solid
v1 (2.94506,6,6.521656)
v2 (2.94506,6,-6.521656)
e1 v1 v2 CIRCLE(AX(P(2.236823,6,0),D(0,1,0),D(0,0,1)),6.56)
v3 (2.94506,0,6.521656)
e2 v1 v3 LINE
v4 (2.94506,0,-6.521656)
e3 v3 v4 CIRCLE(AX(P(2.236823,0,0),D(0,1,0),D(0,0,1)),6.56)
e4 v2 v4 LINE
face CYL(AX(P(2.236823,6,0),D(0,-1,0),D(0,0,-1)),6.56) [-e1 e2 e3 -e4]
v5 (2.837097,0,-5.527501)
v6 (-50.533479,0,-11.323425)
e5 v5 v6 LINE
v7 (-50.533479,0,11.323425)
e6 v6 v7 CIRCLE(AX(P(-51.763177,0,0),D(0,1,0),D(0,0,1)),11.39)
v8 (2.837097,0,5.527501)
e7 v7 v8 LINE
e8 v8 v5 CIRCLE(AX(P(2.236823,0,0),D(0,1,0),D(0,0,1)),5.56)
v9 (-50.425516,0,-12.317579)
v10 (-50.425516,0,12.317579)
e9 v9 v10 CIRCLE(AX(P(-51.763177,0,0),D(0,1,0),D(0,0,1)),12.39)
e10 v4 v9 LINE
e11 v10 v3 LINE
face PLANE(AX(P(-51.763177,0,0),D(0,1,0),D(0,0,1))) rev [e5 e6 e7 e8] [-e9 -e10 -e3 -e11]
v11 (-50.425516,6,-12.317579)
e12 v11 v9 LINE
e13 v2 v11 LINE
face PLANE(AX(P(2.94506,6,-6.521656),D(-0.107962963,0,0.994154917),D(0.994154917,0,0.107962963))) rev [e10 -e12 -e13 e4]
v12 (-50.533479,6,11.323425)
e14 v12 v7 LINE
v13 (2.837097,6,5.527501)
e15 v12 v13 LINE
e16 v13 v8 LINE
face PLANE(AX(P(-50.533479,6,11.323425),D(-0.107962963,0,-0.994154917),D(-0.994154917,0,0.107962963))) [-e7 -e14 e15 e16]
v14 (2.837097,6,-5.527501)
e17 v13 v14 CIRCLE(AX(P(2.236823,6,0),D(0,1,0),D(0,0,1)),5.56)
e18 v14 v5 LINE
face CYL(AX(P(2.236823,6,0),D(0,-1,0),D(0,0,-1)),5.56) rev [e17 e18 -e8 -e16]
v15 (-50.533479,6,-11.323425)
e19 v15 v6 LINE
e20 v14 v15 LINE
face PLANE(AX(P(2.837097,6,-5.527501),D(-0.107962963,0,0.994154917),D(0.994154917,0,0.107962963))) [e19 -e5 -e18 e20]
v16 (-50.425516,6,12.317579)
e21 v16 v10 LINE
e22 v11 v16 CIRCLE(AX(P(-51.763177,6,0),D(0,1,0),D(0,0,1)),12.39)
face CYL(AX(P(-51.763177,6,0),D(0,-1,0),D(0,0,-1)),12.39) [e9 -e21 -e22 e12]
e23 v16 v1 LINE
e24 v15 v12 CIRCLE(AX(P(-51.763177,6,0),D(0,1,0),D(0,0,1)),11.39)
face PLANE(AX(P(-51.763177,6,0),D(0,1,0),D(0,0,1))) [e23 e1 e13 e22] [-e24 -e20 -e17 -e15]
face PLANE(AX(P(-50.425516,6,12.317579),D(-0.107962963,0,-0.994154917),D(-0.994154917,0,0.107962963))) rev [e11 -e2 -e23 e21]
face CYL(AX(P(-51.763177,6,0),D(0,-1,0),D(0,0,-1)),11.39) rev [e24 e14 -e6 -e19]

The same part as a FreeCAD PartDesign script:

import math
import FreeCAD as App
import Part
import Sketcher
from FreeCAD import Vector

doc = App.newDocument("Part")
body = doc.addObject("PartDesign::Body", "Body")

# Sketch on XZ plane
sketch1 = body.newObject("Sketcher::SketchObject", "Sketch")
sketch1.AttachmentSupport = (doc.getObject("XZ_Plane"), [""])
sketch1.MapMode = "FlatFace"
sketch1.addGeometry([
    Part.LineSegment(Vector(-50, 12, 0), Vector(3, 7, 0)),  # 0
    Part.ArcOfCircle(Part.Circle(Vector(2, 0, 0), Vector(0, 0, 1), 7), math.radians(-84), math.radians(84)),  # 1
    Part.LineSegment(Vector(3, -7, 0), Vector(-50, -12, 0)),  # 2
    Part.ArcOfCircle(Part.Circle(Vector(-52, 0, 0), Vector(0, 0, 1), 12), math.radians(84), math.radians(276)),  # 3
    Part.LineSegment(Vector(3, 6, 0), Vector(-51, 11, 0)),  # 4
    Part.ArcOfCircle(Part.Circle(Vector(-52, 0, 0), Vector(0, 0, 1), 11), math.radians(84), math.radians(276)),  # 5
    Part.LineSegment(Vector(-51, -11, 0), Vector(3, -6, 0)),  # 6
    Part.ArcOfCircle(Part.Circle(Vector(2, 0, 0), Vector(0, 0, 1), 6), math.radians(-84), math.radians(84)),  # 7
], False)
sketch1.addConstraint([
    Sketcher.Constraint("Tangent", 0, 2, 1, 2),
    Sketcher.Constraint("Tangent", 1, 1, 2, 1),
    Sketcher.Constraint("Tangent", 2, 2, 3, 2),
    Sketcher.Constraint("Tangent", 3, 1, 0, 1),
    Sketcher.Constraint("Tangent", 4, 2, 5, 1),
    Sketcher.Constraint("Tangent", 5, 2, 6, 1),
    Sketcher.Constraint("Tangent", 6, 2, 7, 1),
    Sketcher.Constraint("Tangent", 7, 2, 4, 1),
    Sketcher.Constraint("Coincident", 5, 3, 3, 3),
    Sketcher.Constraint("Coincident", 7, 3, 1, 3),
    Sketcher.Constraint("Symmetric", 0, 2, 1, 1, -1),
    Sketcher.Constraint("Parallel", 0, 4),
    Sketcher.Constraint("Radius", 1, 6.56),
    Sketcher.Constraint("Radius", 3, 12.39),
    Sketcher.Constraint("Radius", 5, 11.39),
    Sketcher.Constraint("DistanceX", 3, 3, 1, 3, 54.0),
    Sketcher.Constraint("DistanceX", -1, 1, 0, 2, 2.94506),
])
pad1 = body.newObject("PartDesign::Pad", "Pad")
pad1.Profile = sketch1
pad1.Length = 6
pad1.Reversed = True

doc.recompute()
